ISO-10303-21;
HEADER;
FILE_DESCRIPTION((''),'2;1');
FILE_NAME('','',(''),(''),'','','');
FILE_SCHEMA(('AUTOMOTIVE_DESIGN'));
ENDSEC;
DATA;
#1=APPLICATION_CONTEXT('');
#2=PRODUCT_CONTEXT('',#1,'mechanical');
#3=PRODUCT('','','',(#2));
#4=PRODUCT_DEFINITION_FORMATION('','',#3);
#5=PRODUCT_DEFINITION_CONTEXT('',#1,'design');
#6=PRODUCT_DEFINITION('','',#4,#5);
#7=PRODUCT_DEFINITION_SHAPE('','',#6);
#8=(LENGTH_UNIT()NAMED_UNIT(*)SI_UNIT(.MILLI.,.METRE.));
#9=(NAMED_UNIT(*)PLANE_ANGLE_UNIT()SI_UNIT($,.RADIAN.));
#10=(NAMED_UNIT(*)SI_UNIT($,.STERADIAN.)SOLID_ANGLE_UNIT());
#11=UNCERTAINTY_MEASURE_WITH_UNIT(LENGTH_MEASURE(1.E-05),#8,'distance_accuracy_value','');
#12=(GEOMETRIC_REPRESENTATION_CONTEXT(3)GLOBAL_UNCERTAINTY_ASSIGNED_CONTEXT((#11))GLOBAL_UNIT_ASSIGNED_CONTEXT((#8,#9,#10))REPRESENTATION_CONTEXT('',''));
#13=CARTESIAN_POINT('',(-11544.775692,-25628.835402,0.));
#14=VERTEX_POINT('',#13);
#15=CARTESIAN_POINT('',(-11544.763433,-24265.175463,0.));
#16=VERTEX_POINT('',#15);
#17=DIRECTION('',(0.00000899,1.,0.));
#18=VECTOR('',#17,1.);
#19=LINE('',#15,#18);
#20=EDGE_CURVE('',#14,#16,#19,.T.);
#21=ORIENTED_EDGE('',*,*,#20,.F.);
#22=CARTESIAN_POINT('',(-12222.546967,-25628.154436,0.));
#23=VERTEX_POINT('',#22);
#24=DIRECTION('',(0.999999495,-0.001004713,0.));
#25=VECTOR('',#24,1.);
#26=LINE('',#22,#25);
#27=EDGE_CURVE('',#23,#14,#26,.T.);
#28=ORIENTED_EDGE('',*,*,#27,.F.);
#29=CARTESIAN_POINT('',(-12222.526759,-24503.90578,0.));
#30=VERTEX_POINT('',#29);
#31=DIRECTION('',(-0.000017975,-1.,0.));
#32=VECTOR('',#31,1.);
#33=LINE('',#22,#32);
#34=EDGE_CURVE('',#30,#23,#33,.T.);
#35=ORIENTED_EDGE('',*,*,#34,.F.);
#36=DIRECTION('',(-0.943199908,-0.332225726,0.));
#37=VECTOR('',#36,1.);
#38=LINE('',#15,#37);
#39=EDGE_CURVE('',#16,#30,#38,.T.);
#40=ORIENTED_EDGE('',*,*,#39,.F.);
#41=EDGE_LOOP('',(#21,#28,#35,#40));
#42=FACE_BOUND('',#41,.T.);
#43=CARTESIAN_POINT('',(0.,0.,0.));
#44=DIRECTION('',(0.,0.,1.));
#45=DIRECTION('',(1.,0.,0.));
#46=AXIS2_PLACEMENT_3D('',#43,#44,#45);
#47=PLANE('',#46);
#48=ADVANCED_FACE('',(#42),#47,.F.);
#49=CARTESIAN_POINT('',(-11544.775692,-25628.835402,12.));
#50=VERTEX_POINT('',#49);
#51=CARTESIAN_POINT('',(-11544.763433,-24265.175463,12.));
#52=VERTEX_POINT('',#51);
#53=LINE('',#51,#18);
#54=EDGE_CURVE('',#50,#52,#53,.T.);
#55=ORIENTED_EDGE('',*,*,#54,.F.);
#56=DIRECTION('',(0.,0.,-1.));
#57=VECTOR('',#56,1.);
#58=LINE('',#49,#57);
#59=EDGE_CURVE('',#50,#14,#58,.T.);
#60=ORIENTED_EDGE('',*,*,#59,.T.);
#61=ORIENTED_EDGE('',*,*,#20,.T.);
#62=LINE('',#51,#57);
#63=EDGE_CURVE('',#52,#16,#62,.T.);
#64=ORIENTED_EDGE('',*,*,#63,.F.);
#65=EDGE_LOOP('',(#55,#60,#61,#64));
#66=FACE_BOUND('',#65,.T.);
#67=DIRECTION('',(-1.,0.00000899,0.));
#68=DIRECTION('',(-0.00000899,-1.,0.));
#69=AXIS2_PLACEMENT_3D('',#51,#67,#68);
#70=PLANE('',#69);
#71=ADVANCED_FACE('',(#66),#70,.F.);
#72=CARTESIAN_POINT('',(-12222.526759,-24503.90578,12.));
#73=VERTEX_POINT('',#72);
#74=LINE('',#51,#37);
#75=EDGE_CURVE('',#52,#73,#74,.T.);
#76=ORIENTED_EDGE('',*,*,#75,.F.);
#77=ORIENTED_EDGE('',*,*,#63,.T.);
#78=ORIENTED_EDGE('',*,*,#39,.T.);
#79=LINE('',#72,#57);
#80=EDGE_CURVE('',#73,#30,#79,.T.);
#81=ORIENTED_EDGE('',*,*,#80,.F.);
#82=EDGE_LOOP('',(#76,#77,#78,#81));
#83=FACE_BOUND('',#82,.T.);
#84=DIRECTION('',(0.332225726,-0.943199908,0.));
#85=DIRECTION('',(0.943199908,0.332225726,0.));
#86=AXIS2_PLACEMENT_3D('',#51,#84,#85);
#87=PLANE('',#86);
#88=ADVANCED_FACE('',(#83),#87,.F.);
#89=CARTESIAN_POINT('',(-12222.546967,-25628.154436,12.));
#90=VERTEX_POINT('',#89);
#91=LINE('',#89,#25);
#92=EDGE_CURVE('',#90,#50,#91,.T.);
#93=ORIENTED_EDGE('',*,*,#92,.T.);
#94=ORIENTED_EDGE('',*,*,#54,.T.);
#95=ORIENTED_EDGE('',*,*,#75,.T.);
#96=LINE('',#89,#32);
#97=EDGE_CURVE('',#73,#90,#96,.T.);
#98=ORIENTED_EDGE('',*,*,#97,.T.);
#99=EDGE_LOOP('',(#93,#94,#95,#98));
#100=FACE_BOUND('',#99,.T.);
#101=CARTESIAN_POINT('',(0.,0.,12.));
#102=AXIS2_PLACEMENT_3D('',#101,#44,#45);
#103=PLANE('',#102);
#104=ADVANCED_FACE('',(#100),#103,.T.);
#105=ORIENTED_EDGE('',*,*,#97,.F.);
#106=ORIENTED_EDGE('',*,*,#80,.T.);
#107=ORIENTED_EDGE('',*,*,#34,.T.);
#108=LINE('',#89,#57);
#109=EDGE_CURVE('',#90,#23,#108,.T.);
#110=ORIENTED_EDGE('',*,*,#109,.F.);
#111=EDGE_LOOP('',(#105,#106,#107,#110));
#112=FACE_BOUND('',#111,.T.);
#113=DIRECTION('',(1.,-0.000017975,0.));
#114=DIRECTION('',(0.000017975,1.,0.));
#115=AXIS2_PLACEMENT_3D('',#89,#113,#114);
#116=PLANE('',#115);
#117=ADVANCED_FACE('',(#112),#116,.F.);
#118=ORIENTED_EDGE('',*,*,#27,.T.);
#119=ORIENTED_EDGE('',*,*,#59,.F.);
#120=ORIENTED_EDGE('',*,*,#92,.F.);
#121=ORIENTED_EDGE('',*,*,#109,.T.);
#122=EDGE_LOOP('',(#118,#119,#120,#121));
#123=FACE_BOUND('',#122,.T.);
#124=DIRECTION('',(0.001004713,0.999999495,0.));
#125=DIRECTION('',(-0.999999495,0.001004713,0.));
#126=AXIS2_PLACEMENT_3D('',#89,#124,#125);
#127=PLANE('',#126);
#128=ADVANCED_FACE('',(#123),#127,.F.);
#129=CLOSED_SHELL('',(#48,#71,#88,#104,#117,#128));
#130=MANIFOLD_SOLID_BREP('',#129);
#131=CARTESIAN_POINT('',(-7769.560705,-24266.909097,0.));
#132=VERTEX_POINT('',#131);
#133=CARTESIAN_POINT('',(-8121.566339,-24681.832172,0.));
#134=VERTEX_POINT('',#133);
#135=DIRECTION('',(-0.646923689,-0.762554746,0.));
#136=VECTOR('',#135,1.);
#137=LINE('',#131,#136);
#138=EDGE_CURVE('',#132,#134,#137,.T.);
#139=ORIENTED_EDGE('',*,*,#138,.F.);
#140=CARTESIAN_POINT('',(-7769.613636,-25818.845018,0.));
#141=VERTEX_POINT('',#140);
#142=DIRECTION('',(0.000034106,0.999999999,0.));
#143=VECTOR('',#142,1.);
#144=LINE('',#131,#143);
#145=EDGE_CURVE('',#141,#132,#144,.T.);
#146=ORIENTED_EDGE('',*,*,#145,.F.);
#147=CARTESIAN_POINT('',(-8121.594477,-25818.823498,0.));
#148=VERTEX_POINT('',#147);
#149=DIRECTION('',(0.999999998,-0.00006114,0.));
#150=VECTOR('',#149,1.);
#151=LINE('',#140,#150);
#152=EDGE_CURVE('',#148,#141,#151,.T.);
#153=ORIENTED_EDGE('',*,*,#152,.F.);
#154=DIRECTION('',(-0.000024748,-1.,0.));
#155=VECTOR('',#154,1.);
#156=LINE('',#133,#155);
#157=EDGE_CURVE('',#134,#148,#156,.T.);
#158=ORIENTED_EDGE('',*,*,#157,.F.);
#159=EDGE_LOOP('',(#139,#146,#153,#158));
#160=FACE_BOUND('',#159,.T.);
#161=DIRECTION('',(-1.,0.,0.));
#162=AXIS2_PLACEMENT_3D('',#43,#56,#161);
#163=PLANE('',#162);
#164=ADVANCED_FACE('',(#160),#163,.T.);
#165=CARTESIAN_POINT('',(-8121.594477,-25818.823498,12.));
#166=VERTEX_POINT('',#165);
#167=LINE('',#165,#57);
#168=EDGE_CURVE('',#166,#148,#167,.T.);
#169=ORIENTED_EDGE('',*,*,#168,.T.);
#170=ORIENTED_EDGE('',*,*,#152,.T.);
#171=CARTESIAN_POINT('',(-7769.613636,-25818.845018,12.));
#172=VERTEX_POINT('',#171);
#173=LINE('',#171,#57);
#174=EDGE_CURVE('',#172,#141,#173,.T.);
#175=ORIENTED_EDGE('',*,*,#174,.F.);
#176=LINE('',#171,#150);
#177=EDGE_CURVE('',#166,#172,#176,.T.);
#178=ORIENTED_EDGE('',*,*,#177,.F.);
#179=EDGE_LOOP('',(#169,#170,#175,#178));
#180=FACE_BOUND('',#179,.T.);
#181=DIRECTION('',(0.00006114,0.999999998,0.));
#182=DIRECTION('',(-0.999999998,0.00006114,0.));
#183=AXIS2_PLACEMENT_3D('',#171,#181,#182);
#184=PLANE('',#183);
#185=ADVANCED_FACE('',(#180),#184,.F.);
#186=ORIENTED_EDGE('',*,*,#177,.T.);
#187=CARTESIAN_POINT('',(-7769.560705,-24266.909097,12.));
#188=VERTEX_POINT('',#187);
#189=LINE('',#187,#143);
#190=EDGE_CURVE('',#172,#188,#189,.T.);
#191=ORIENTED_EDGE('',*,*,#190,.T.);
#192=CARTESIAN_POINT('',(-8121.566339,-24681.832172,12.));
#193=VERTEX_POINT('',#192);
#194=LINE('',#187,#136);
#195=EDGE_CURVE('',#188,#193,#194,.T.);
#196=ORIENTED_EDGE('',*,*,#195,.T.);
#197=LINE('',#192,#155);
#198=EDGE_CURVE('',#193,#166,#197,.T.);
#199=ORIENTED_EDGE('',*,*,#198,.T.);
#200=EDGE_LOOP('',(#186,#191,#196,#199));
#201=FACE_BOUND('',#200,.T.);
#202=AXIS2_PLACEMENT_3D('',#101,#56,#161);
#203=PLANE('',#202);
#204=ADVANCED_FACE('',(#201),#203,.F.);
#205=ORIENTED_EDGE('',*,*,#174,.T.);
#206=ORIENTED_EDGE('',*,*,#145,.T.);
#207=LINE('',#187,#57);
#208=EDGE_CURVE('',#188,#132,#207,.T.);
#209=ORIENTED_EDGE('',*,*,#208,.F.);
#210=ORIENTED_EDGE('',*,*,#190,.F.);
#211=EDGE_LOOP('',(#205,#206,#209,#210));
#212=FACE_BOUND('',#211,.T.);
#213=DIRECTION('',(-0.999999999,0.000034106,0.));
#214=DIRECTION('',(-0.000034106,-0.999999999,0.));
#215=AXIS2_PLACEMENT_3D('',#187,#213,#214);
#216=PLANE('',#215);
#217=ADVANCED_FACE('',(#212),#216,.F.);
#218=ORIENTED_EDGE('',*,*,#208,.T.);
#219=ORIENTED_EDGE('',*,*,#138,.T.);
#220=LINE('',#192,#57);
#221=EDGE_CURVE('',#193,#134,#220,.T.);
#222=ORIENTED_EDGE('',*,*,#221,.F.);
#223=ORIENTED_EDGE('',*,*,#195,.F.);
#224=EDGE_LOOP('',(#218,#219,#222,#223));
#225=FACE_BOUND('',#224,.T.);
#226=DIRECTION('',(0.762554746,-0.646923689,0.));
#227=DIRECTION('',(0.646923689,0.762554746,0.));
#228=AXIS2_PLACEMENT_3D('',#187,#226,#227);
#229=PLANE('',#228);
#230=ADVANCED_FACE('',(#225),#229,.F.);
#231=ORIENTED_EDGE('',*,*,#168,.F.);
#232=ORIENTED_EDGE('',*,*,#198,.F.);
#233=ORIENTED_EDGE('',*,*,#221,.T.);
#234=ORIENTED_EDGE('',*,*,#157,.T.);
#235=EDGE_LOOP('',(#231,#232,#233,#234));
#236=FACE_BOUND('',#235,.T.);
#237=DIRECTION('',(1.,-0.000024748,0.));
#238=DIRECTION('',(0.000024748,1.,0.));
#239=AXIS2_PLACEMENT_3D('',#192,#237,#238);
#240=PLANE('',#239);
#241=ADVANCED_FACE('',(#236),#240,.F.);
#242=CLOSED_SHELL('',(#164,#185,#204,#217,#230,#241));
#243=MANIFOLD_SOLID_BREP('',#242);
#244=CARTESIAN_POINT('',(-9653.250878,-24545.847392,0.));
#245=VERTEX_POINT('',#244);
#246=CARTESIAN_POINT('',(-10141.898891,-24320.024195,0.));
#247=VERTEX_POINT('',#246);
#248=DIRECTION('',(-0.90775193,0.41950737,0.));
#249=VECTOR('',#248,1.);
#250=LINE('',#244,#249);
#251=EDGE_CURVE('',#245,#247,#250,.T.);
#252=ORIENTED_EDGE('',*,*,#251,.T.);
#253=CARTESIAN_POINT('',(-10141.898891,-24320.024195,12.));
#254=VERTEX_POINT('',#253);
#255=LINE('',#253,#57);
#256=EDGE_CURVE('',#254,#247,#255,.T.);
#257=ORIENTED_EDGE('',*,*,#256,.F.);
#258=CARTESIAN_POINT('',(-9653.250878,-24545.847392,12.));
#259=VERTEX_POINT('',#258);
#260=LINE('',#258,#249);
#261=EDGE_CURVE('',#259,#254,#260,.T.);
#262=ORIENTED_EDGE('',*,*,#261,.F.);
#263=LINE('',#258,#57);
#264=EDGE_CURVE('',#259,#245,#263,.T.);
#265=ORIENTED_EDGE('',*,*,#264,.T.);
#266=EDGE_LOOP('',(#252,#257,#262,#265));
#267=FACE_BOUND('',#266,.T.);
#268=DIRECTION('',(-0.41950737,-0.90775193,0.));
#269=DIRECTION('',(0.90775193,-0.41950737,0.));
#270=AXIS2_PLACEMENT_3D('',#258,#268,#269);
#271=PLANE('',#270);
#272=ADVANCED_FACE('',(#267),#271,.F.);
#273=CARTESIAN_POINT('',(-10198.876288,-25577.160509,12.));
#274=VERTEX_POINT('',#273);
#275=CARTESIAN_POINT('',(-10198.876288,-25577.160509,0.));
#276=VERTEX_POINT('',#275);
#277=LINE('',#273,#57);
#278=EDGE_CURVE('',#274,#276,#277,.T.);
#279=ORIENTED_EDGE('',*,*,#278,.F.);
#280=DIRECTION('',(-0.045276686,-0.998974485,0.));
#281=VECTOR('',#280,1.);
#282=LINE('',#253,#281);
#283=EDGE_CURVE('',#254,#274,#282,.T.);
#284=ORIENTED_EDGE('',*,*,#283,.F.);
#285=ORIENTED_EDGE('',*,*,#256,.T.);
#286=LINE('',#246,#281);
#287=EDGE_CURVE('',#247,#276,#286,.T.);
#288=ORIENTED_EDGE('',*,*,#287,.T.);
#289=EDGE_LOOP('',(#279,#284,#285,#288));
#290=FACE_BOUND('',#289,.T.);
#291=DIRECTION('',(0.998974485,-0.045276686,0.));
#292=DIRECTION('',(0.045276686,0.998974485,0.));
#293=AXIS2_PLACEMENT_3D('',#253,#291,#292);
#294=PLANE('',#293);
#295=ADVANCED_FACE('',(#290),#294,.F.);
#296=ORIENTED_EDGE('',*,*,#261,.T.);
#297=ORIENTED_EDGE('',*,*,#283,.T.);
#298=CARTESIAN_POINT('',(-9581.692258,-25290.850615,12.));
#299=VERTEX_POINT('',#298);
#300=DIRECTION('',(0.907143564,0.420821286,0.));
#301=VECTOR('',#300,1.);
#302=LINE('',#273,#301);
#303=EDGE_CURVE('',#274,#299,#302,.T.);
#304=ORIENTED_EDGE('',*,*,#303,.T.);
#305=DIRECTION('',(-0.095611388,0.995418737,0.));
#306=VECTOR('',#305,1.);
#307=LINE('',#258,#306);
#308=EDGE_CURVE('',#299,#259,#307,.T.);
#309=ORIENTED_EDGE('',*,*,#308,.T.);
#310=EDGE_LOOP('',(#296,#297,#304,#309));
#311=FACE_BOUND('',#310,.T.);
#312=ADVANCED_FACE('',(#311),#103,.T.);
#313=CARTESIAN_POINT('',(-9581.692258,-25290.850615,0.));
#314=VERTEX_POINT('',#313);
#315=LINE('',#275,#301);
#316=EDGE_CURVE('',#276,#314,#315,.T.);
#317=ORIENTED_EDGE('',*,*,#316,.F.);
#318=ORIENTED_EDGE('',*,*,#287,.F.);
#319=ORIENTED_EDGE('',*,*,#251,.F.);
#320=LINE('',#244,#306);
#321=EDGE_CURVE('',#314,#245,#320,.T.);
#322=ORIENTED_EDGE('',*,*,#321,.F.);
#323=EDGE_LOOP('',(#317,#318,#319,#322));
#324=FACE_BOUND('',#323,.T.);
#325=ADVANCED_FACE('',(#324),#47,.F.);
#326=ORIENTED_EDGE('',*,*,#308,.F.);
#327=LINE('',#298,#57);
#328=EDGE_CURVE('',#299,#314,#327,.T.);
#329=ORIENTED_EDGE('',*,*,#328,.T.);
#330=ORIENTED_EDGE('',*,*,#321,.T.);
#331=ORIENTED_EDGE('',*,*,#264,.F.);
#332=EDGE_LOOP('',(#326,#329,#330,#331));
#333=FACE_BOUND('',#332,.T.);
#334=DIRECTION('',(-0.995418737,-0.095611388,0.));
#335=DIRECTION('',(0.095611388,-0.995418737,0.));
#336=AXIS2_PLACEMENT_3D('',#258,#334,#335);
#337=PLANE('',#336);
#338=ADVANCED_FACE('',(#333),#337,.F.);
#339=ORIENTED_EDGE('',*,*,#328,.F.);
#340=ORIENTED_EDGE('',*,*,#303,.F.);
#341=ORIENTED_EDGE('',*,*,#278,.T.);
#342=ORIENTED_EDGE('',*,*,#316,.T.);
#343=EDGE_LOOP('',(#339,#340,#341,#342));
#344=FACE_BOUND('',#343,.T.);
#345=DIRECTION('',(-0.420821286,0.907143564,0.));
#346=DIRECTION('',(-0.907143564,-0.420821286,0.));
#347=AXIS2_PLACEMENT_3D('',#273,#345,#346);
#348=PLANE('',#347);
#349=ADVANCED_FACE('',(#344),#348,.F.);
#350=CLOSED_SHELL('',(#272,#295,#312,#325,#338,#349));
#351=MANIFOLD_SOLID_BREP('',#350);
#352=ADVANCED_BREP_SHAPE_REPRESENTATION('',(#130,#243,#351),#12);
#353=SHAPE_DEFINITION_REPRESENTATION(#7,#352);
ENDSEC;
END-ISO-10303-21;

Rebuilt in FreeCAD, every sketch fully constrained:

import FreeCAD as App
import Part
import Sketcher

doc = App.newDocument("Part")
body = doc.addObject("PartDesign::Body", "Body")

# Sketch on XY plane
sketch1 = body.newObject("Sketcher::SketchObject", "Sketch")
sketch1.AttachmentSupport = (doc.getObject("XY_Plane"), [""])
sketch1.MapMode = "FlatFace"
sketch1.addGeometry(Part.LineSegment(App.Vector(-11545, -25629, 0), App.Vector(-11545, -24265, 0)), False)
sketch1.addGeometry(Part.LineSegment(App.Vector(-11545, -24265, 0), App.Vector(-12223, -24504, 0)), False)
sketch1.addGeometry(Part.LineSegment(App.Vector(-12223, -24504, 0), App.Vector(-12223, -25628, 0)), False)
sketch1.addGeometry(Part.LineSegment(App.Vector(-12223, -25628, 0), App.Vector(-11545, -25629, 0)), False)
sketch1.addConstraint(Sketcher.Constraint("Coincident", 0, 2, 1, 1))
sketch1.addConstraint(Sketcher.Constraint("Coincident", 1, 2, 2, 1))
sketch1.addConstraint(Sketcher.Constraint("Coincident", 2, 2, 3, 1))
sketch1.addConstraint(Sketcher.Constraint("Coincident", 3, 2, 0, 1))
sketch1.addConstraint(Sketcher.Constraint("DistanceY", 3, 2, -1, 1, 25628.835402))
sketch1.addConstraint(Sketcher.Constraint("Distance", 0, 1363.659939))
sketch1.addConstraint(Sketcher.Constraint("Distance", 1, 718.57866))
sketch1.addConstraint(Sketcher.Constraint("DistanceX", 1, 2, -1, 1, 12222.526759))
sketch1.addConstraint(Sketcher.Constraint("DistanceY", 1, 2, -1, 1, 24503.90578))
sketch1.addConstraint(Sketcher.Constraint("DistanceX", 3, 2, -1, 1, 11544.775692))
sketch1.addConstraint(Sketcher.Constraint("DistanceX", 2, 2, 1, 2, 0.020208))
sketch1.addConstraint(Sketcher.Constraint("Distance", 2, 1124.248656))
pad1 = body.newObject("PartDesign::Pad", "Pad")
pad1.Profile = sketch1
pad1.Length = 12
body2 = doc.addObject("PartDesign::Body", "Body001")

# Sketch on XY plane
sketch2 = body2.newObject("Sketcher::SketchObject", "Sketch001")
sketch2.AttachmentSupport = (doc.getObject("XY_Plane001"), [""])
sketch2.MapMode = "FlatFace"
sketch2.addGeometry(Part.LineSegment(App.Vector(-8122, -24682, 0), App.Vector(-8122, -25819, 0)), False)
sketch2.addGeometry(Part.LineSegment(App.Vector(-8122, -25819, 0), App.Vector(-7770, -25819, 0)), False)
sketch2.addGeometry(Part.LineSegment(App.Vector(-7770, -25819, 0), App.Vector(-7770, -24267, 0)), False)
sketch2.addGeometry(Part.LineSegment(App.Vector(-7770, -24267, 0), App.Vector(-8122, -24682, 0)), False)
sketch2.addConstraint(Sketcher.Constraint("Coincident", 0, 2, 1, 1))
sketch2.addConstraint(Sketcher.Constraint("Coincident", 1, 2, 2, 1))
sketch2.addConstraint(Sketcher.Constraint("Coincident", 2, 2, 3, 1))
sketch2.addConstraint(Sketcher.Constraint("Coincident", 3, 2, 0, 1))
sketch2.addConstraint(Sketcher.Constraint("DistanceY", 0, 2, 2, 2, 1551.914401))
sketch2.addConstraint(Sketcher.Constraint("Distance", 1, 351.980842))
sketch2.addConstraint(Sketcher.Constraint("Distance", 2, 1551.935922))
sketch2.addConstraint(Sketcher.Constraint("DistanceX", 3, 2, -1, 1, 8121.566339))
sketch2.addConstraint(Sketcher.Constraint("DistanceX", 1, 2, 2, 2, 0.052931))
sketch2.addConstraint(Sketcher.Constraint("Distance", 0, 1136.991326))
sketch2.addConstraint(Sketcher.Constraint("Distance", 3, 544.122344))
sketch2.addConstraint(Sketcher.Constraint("DistanceY", 0, 2, -1, 1, 25818.823498))
pad2 = body2.newObject("PartDesign::Pad", "Pad001")
pad2.Profile = sketch2
pad2.Length = 12
body3 = doc.addObject("PartDesign::Body", "Body002")

# Sketch on XY plane
sketch3 = body3.newObject("Sketcher::SketchObject", "Sketch002")
sketch3.AttachmentSupport = (doc.getObject("XY_Plane002"), [""])
sketch3.MapMode = "FlatFace"
sketch3.addGeometry(Part.LineSegment(App.Vector(-10142, -24320, 0), App.Vector(-10199, -25577, 0)), False)
sketch3.addGeometry(Part.LineSegment(App.Vector(-10199, -25577, 0), App.Vector(-9582, -25291, 0)), False)
sketch3.addGeometry(Part.LineSegment(App.Vector(-9582, -25291, 0), App.Vector(-9653, -24546, 0)), False)
sketch3.addGeometry(Part.LineSegment(App.Vector(-9653, -24546, 0), App.Vector(-10142, -24320, 0)), False)
sketch3.addConstraint(Sketcher.Constraint("Coincident", 0, 2, 1, 1))
sketch3.addConstraint(Sketcher.Constraint("Coincident", 1, 2, 2, 1))
sketch3.addConstraint(Sketcher.Constraint("Coincident", 2, 2, 3, 1))
sketch3.addConstraint(Sketcher.Constraint("Coincident", 3, 2, 0, 1))
sketch3.addConstraint(Sketcher.Constraint("Distance", 0, 1258.426849))
sketch3.addConstraint(Sketcher.Constraint("Distance", 1, 680.359818))
sketch3.addConstraint(Sketcher.Constraint("Distance", 3, 538.305672))
sketch3.addConstraint(Sketcher.Constraint("DistanceY", 0, 2, -1, 1, 25577.160509))
sketch3.addConstraint(Sketcher.Constraint("DistanceX", 2, 2, -1, 1, 9653.250878))
sketch3.addConstraint(Sketcher.Constraint("DistanceX", 3, 2, -1, 1, 10141.898891))
sketch3.addConstraint(Sketcher.Constraint("DistanceX", 0, 2, 1, 2, 617.18403))
sketch3.addConstraint(Sketcher.Constraint("DistanceX", 2, 2, 1, 2, 71.558621))
pad3 = body3.newObject("PartDesign::Pad", "Pad002")
pad3.Profile = sketch3
pad3.Length = 12

doc.recompute()
